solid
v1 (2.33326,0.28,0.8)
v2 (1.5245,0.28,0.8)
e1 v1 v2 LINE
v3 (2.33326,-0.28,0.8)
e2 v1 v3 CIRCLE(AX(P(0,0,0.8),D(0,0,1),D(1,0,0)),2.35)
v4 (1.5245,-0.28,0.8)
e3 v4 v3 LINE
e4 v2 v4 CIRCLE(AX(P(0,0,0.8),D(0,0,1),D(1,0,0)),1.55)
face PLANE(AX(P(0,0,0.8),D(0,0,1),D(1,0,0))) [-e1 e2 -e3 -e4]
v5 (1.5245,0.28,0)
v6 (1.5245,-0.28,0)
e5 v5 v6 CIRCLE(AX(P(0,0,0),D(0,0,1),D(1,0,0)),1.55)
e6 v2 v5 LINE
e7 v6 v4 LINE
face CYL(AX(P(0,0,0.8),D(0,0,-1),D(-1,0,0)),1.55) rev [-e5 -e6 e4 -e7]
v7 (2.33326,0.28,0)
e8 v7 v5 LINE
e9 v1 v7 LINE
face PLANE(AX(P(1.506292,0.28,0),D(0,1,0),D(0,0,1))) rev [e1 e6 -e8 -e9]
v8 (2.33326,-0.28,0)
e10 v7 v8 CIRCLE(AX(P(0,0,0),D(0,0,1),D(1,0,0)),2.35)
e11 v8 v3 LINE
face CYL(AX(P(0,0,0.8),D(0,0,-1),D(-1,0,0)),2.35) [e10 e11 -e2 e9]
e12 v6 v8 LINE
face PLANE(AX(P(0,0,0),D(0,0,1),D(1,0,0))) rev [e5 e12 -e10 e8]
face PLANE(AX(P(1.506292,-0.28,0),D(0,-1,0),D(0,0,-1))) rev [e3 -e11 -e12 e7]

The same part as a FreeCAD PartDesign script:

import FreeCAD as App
import Part
import Sketcher
Q = App.Units.Quantity


def add_polygon(sketch, points):
    """Adds a closed chain of lines whose ends are joined by coincident constraints."""
    first, n = sketch.GeometryCount, len(points)
    for a, b in zip(points, points[1:] + points[:1]):
        sketch.addGeometry(Part.LineSegment(App.Vector(*a, 0), App.Vector(*b, 0)), False)
    for i in range(n):
        sketch.addConstraint(Sketcher.Constraint("Coincident", first + i, 2, first + (i + 1) % n, 1))

doc = App.newDocument("Part")
body = doc.addObject("PartDesign::Body", "Body")

sketch1 = body.newObject("Sketcher::SketchObject", "Sketch")
sketch1.AttachmentSupport = (doc.getObject("XY_Plane"), [""])
sketch1.MapMode = "FlatFace"
sketch1.addGeometry([
    Part.Circle(App.Vector(0, 0, 0), App.Vector(0, 0, 1), 2.4),
    Part.Circle(App.Vector(0, 0, 0), App.Vector(0, 0, 1), 1.6),
], False)
sketch1.addConstraint([
    Sketcher.Constraint("Coincident", 0, 3, -1, 1),
    Sketcher.Constraint("Coincident", 1, 3, -1, 1),
    Sketcher.Constraint("Diameter", 0, Q("4.7 mm")),
    Sketcher.Constraint("Diameter", 1, Q("3.1 mm")),
])
pad1 = body.newObject("PartDesign::Pad", "Pad")
pad1.Profile = sketch1
pad1.Length = 0.8

sketch2 = body.newObject("Sketcher::SketchObject", "Sketch001")
sketch2.AttachmentSupport = (doc.getObject("XY_Plane"), [""])
sketch2.MapMode = "FlatFace"
sketch2.AttachmentOffset = App.Placement(App.Vector(0, 0, 0.8), App.Rotation())
add_polygon(sketch2, [(1.5, 0.3), (1.5, -0.3), (2.4, -0.3), (2.4, 0.3)])
sketch2.addConstraint([
    Sketcher.Constraint("Vertical", 0),
    Sketcher.Constraint("Horizontal", 1),
    Sketcher.Constraint("Vertical", 2),
    Sketcher.Constraint("Horizontal", 3),
    Sketcher.Constraint("DistanceY", 0, 2, 0, 1, Q("0.56 mm")),
    Sketcher.Constraint("DistanceY", 0, 2, -1, 1, Q("0.28 mm")),
    Sketcher.Constraint("DistanceX", 1, 1, 1, 2, Q("0.930969 mm")),
    Sketcher.Constraint("DistanceX", -1, 1, 1, 2, Q("2.437261 mm")),
])
pocket1 = body.newObject("PartDesign::Pocket", "Pocket")
pocket1.Profile = sketch2
pocket1.Type = "ThroughAll"

doc.recompute()
